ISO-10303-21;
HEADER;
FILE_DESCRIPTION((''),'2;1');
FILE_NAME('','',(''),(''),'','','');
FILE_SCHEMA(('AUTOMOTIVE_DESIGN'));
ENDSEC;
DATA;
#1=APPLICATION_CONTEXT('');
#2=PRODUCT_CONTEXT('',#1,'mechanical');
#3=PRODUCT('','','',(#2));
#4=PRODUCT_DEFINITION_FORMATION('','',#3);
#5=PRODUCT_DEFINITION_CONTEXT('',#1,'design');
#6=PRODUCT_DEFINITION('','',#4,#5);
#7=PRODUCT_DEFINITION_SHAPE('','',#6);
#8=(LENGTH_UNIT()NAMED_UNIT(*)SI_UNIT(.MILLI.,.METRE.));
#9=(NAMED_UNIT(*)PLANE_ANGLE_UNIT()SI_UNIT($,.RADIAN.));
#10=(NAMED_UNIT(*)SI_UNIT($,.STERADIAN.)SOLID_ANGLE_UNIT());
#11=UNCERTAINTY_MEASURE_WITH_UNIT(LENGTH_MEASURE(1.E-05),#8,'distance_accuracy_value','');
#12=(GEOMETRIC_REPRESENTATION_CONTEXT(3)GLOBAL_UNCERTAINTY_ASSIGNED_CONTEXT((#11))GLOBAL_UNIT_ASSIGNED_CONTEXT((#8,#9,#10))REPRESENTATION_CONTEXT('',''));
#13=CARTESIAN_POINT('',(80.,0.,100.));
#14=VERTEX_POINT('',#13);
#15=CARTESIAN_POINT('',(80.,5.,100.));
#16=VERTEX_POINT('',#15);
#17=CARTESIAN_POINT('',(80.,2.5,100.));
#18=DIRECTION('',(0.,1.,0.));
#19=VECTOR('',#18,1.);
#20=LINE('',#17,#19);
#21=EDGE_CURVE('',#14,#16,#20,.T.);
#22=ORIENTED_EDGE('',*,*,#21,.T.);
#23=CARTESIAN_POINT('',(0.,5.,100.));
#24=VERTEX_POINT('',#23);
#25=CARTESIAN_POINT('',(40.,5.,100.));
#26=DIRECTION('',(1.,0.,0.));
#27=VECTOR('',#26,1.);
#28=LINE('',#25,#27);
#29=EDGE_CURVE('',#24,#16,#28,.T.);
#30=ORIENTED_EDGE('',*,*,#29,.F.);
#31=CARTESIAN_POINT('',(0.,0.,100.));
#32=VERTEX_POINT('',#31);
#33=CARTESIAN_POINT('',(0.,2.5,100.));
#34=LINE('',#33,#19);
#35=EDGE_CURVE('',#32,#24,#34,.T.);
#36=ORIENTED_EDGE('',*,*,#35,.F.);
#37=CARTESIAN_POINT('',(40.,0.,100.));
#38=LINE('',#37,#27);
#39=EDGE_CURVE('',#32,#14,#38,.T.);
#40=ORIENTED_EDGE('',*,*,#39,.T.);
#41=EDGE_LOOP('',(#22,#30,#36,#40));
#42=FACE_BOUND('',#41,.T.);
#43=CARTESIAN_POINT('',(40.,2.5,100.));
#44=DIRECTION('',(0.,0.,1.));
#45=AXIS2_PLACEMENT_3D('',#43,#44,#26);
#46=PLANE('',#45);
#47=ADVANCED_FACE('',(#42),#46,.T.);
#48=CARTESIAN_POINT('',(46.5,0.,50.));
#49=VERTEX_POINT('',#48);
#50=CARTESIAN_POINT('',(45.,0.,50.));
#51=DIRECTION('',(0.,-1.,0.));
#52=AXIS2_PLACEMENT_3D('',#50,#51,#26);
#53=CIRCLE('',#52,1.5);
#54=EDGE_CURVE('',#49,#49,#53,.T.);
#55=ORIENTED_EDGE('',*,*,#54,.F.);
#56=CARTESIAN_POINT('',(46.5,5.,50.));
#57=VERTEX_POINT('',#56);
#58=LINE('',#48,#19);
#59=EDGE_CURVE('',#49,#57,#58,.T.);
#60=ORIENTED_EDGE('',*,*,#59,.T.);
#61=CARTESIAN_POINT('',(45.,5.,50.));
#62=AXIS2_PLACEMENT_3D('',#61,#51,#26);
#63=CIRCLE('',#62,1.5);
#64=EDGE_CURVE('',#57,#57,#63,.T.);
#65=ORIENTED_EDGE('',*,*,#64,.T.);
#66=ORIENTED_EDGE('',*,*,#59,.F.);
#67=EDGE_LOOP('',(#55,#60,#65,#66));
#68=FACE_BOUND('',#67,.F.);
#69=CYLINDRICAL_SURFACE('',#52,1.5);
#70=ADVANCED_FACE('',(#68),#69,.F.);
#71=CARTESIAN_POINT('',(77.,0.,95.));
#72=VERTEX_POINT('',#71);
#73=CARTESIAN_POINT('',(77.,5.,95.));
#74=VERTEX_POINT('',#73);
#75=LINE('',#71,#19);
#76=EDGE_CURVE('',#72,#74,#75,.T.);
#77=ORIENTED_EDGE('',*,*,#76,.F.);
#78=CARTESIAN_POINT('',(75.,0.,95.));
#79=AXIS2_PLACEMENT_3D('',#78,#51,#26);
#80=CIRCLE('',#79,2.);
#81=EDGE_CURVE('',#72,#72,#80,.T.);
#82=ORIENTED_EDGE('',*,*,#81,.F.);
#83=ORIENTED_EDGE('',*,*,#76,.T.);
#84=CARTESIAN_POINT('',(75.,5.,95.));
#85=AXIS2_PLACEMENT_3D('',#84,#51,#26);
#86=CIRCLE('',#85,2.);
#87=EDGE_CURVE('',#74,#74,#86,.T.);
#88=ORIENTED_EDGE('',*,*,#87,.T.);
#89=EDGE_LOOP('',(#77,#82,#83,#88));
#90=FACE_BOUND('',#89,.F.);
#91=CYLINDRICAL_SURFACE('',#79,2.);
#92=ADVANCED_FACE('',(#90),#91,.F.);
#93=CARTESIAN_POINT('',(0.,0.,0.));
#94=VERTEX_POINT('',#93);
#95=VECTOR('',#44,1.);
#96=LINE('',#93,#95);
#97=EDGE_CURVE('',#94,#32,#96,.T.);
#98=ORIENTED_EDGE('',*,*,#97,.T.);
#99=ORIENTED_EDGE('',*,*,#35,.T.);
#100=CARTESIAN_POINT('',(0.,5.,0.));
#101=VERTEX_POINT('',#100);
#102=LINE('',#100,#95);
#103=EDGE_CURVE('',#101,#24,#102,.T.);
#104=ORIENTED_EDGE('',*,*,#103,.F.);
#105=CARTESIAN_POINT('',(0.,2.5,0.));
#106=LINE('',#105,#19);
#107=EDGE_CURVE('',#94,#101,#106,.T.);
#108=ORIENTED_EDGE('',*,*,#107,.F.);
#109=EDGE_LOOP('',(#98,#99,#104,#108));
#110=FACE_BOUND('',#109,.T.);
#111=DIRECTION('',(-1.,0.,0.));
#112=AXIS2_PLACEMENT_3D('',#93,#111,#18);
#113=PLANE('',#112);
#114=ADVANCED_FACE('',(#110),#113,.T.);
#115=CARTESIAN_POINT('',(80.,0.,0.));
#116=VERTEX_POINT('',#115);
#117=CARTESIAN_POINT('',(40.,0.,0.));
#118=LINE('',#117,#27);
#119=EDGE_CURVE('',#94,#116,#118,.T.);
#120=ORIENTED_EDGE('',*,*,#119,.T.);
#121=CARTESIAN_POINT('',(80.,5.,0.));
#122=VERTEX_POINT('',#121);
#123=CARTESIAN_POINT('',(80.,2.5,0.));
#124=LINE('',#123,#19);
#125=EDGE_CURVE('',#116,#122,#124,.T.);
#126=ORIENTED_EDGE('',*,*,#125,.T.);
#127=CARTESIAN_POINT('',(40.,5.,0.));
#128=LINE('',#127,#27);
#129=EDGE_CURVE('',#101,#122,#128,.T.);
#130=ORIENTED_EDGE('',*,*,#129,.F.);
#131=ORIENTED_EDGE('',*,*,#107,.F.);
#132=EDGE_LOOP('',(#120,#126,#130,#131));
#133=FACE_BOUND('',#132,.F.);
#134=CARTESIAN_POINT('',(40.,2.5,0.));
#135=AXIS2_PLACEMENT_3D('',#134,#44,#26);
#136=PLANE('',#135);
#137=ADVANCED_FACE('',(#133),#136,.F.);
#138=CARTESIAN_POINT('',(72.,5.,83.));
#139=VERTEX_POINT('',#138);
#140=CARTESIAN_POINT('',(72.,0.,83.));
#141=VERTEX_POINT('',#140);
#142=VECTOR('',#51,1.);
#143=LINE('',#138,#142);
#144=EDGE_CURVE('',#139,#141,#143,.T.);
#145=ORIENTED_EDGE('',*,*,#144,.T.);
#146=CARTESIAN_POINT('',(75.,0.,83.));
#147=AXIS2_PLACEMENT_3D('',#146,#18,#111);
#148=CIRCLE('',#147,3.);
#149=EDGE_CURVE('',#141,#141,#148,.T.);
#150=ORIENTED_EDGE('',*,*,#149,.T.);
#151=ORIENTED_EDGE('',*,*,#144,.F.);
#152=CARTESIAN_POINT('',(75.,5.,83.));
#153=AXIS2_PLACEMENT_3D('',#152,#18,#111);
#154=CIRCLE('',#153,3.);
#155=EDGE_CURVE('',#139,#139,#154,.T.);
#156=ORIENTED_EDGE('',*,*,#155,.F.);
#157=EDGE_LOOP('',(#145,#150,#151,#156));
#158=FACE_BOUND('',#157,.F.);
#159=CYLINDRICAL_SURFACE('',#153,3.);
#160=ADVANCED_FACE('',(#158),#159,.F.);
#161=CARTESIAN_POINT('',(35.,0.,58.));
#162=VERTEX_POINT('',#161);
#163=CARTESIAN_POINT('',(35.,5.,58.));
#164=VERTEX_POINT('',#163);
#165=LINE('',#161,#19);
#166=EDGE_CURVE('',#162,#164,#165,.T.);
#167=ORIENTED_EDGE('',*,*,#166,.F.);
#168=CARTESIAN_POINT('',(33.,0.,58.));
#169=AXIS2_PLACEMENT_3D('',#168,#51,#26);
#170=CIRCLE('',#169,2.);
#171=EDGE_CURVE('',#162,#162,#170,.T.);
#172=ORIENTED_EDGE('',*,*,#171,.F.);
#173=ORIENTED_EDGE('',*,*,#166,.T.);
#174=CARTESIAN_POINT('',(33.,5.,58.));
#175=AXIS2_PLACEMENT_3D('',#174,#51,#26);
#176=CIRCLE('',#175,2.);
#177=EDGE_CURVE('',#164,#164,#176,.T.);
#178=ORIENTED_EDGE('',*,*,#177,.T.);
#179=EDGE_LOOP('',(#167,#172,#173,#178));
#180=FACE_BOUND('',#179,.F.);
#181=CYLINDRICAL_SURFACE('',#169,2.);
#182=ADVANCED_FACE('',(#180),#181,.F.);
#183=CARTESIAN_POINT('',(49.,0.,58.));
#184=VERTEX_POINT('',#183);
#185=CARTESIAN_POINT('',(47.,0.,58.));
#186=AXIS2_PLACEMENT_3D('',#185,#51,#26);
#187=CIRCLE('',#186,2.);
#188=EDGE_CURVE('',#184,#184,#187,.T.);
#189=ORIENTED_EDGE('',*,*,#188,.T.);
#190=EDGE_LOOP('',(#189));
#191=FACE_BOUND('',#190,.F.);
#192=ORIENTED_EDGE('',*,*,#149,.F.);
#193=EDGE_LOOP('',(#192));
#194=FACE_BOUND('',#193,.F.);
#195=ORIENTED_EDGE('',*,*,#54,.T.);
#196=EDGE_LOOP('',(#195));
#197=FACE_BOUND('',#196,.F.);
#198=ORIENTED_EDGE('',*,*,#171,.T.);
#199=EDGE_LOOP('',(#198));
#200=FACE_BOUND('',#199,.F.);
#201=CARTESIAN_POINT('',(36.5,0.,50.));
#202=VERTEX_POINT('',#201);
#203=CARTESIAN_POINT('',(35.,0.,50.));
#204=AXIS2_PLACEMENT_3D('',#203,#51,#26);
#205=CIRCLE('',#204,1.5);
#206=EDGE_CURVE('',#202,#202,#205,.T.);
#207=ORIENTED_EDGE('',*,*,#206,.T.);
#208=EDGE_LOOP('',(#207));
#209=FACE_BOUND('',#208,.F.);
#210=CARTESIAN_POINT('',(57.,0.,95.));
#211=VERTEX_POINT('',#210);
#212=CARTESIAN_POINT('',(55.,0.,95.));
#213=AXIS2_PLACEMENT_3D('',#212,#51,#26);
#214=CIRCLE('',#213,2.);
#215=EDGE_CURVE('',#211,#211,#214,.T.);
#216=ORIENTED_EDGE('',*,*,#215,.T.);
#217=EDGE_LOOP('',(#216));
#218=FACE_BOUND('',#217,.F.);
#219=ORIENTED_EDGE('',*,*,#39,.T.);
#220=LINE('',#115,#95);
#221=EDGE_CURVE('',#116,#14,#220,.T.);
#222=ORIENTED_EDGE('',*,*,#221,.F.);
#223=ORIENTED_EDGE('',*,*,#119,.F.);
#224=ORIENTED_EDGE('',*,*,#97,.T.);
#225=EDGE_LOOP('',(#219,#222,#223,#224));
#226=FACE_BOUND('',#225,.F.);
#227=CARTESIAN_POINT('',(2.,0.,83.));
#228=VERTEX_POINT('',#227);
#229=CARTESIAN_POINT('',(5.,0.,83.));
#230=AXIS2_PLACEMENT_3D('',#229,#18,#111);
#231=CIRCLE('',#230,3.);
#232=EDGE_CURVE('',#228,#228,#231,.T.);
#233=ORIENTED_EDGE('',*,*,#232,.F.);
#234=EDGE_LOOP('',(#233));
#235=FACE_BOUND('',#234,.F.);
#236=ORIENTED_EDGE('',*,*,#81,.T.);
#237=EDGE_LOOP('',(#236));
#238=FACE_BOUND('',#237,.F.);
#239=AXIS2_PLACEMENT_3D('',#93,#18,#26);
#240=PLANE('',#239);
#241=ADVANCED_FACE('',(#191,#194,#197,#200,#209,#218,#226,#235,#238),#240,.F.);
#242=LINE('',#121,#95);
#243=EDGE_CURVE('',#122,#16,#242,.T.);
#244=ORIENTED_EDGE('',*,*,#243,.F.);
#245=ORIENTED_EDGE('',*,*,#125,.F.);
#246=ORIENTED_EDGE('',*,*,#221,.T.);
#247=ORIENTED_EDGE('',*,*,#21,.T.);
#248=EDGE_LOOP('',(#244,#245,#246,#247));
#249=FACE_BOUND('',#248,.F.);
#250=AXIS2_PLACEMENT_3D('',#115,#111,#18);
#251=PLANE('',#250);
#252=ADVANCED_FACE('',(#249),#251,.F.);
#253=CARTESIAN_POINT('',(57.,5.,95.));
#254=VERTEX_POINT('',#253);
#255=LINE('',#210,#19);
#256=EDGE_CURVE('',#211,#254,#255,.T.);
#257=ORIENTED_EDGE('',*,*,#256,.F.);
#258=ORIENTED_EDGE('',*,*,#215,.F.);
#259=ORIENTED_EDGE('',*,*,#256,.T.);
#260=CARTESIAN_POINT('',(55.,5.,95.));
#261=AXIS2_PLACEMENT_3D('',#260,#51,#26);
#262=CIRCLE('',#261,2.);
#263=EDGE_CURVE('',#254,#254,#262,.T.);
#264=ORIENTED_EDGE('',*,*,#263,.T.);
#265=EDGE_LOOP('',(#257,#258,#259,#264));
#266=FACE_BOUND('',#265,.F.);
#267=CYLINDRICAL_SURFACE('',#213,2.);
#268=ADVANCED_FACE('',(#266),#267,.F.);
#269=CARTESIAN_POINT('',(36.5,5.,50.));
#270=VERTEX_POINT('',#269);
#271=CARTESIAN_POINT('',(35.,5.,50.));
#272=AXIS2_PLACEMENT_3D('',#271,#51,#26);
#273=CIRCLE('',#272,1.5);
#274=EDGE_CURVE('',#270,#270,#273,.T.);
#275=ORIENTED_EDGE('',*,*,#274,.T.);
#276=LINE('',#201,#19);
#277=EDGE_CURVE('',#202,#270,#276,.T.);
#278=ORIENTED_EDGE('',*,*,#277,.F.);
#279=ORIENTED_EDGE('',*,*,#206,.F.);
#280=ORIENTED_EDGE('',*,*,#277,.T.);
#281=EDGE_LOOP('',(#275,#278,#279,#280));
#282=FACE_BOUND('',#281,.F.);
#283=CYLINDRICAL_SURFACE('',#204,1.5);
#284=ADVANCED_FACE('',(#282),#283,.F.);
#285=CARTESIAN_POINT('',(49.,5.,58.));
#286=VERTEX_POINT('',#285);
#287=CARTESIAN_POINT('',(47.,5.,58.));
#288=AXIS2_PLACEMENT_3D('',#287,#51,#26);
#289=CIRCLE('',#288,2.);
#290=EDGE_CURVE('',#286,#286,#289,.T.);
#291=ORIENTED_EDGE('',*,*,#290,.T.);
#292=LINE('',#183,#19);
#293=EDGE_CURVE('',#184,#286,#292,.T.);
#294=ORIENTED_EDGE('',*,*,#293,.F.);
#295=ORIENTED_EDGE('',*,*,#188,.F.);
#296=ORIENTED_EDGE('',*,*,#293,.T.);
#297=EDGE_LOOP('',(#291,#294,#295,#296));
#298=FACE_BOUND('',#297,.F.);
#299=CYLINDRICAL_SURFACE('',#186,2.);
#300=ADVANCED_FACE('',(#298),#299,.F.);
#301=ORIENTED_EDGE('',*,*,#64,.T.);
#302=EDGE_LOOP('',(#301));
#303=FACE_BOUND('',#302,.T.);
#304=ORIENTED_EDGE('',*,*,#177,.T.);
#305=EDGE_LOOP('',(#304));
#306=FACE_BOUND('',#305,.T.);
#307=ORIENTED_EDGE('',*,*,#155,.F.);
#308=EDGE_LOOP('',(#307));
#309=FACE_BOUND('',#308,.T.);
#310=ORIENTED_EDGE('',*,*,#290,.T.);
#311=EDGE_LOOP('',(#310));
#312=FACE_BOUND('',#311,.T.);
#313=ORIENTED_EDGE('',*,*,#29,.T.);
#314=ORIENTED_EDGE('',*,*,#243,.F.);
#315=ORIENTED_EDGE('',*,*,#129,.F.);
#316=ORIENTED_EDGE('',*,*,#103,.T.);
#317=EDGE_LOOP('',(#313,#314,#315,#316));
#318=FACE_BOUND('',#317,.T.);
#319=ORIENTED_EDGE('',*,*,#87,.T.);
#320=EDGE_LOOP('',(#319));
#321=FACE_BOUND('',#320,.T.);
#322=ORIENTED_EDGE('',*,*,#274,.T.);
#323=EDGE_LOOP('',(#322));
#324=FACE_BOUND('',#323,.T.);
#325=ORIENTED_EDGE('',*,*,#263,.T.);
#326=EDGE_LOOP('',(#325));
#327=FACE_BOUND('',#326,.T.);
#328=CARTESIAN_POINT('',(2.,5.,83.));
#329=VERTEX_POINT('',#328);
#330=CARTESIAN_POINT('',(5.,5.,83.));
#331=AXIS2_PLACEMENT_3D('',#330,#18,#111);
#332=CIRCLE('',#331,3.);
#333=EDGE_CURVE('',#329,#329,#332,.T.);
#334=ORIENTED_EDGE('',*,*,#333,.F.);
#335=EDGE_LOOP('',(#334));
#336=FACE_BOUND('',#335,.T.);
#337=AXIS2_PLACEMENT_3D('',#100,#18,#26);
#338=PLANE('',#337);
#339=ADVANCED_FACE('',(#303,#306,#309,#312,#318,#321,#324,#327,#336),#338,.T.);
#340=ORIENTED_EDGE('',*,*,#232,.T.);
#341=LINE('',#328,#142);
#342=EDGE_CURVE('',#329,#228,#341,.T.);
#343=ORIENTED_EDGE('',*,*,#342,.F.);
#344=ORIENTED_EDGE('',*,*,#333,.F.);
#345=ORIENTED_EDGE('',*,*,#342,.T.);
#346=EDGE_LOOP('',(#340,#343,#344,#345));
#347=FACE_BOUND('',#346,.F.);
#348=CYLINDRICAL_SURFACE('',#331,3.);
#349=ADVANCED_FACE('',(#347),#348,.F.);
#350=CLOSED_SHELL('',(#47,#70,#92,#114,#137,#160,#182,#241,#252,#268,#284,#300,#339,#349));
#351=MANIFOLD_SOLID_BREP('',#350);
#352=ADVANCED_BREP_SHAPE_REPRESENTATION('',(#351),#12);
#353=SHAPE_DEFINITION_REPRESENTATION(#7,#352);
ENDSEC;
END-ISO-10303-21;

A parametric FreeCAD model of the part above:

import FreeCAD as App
import Part
import Sketcher


def add_polygon(sketch, points):
    """Adds a closed chain of lines whose ends are joined by coincident constraints."""
    first, n = sketch.GeometryCount, len(points)
    for a, b in zip(points, points[1:] + points[:1]):
        sketch.addGeometry(Part.LineSegment(App.Vector(*a, 0), App.Vector(*b, 0)), False)
    for i in range(n):
        sketch.addConstraint(Sketcher.Constraint("Coincident", first + i, 2, first + (i + 1) % n, 1))

doc = App.newDocument("Part")
params = doc.addObject("Spreadsheet::Sheet", "Params")
for row, (alias, value) in enumerate([
    ("sketch1_width", "80 mm"),
    ("sketch1_height", "5 mm"),
    ("pad1_length", "100 mm"),
    ("sketch2_diameter", "6 mm"),
    ("pocket1_length", "25 mm"),
    ("sketch3_diameter", "3 mm"),
    ("pocket2_length", "25 mm"),
    ("sketch4_diameter", "4 mm"),
    ("pocket3_length", "25 mm"),
    ("sketch5_diameter", "4 mm"),
    ("pocket4_length", "25 mm"),
], start=1):
    params.set(f"A{row}", alias)
    params.set(f"B{row}", "=" + value)
    params.setAlias(f"B{row}", alias)

body = doc.addObject("PartDesign::Body", "Body")

# Sketch on XY plane
sketch1 = body.newObject("Sketcher::SketchObject", "Sketch")
sketch1.AttachmentSupport = (doc.getObject("XY_Plane"), [""])
sketch1.MapMode = "FlatFace"
add_polygon(sketch1, [(0, 5), (0, 0), (80, 0), (80, 5)])  # lines 0-3
sketch1.addConstraint(Sketcher.Constraint("Vertical", 0))
sketch1.addConstraint(Sketcher.Constraint("Horizontal", 1))
sketch1.addConstraint(Sketcher.Constraint("Vertical", 2))
sketch1.addConstraint(Sketcher.Constraint("Horizontal", 3))
sketch1.addConstraint(Sketcher.Constraint("Coincident", 0, 2, -1, 1))
sketch1.addConstraint(Sketcher.Constraint("DistanceX", 1, 1, 1, 2, 80.0))
sketch1.addConstraint(Sketcher.Constraint("DistanceY", 0, 2, 0, 1, 5.0))
sketch1.setExpression("Constraints[9]", "Params.sketch1_width")
sketch1.setExpression("Constraints[10]", "Params.sketch1_height")
pad1 = body.newObject("PartDesign::Pad", "Pad")
pad1.Profile = sketch1
pad1.setExpression("Length", "Params.pad1_length")

# Sketch on XZ plane
sketch2 = body.newObject("Sketcher::SketchObject", "Sketch001")
sketch2.AttachmentSupport = (doc.getObject("XZ_Plane"), [""])
sketch2.MapMode = "FlatFace"
sketch2.AttachmentOffset = App.Placement(App.Vector(0, 0, -5), App.Rotation())
sketch2.addGeometry(Part.Circle(App.Vector(5, 83, 0), App.Vector(0, 0, 1), 3), False)
sketch2.addGeometry(Part.Circle(App.Vector(75, 83, 0), App.Vector(0, 0, 1), 3), False)
sketch2.addConstraint(Sketcher.Constraint("Equal", 0, 1))
sketch2.addConstraint(Sketcher.Constraint("Horizontal", 0, 3, 1, 3))
sketch2.addConstraint(Sketcher.Constraint("Diameter", 0, 6.0))
sketch2.addConstraint(Sketcher.Constraint("DistanceX", -1, 1, 0, 3, 5.0))
sketch2.addConstraint(Sketcher.Constraint("DistanceY", -1, 1, 0, 3, 83.0))
sketch2.addConstraint(Sketcher.Constraint("DistanceX", -1, 1, 1, 3, 75.0))
sketch2.setExpression("Constraints[2]", "Params.sketch2_diameter")
pocket1 = body.newObject("PartDesign::Pocket", "Pocket")
pocket1.Profile = sketch2
pocket1.setExpression("Length", "Params.pocket1_length")
pocket1.Reversed = True

# Sketch on XZ plane
sketch3 = body.newObject("Sketcher::SketchObject", "Sketch002")
sketch3.AttachmentSupport = (doc.getObject("XZ_Plane"), [""])
sketch3.MapMode = "FlatFace"
sketch3.addGeometry(Part.Circle(App.Vector(45, 50, 0), App.Vector(0, 0, 1), 1.5), False)
sketch3.addGeometry(Part.Circle(App.Vector(35, 50, 0), App.Vector(0, 0, 1), 1.5), False)
sketch3.addConstraint(Sketcher.Constraint("Equal", 0, 1))
sketch3.addConstraint(Sketcher.Constraint("Horizontal", 0, 3, 1, 3))
sketch3.addConstraint(Sketcher.Constraint("Diameter", 0, 3.0))
sketch3.addConstraint(Sketcher.Constraint("DistanceX", -1, 1, 0, 3, 45.0))
sketch3.addConstraint(Sketcher.Constraint("DistanceY", -1, 1, 0, 3, 50.0))
sketch3.addConstraint(Sketcher.Constraint("DistanceX", -1, 1, 1, 3, 35.0))
sketch3.setExpression("Constraints[2]", "Params.sketch3_diameter")
pocket2 = body.newObject("PartDesign::Pocket", "Pocket001")
pocket2.Profile = sketch3
pocket2.setExpression("Length", "Params.pocket2_length")

# Sketch on XZ plane
sketch4 = body.newObject("Sketcher::SketchObject", "Sketch003")
sketch4.AttachmentSupport = (doc.getObject("XZ_Plane"), [""])
sketch4.MapMode = "FlatFace"
sketch4.addGeometry(Part.Circle(App.Vector(75, 95, 0), App.Vector(0, 0, 1), 2), False)
sketch4.addGeometry(Part.Circle(App.Vector(55, 95, 0), App.Vector(0, 0, 1), 2), False)
sketch4.addConstraint(Sketcher.Constraint("Equal", 0, 1))
sketch4.addConstraint(Sketcher.Constraint("Horizontal", 0, 3, 1, 3))
sketch4.addConstraint(Sketcher.Constraint("Diameter", 0, 4.0))
sketch4.addConstraint(Sketcher.Constraint("DistanceX", -1, 1, 0, 3, 75.0))
sketch4.addConstraint(Sketcher.Constraint("DistanceY", -1, 1, 0, 3, 95.0))
sketch4.addConstraint(Sketcher.Constraint("DistanceX", -1, 1, 1, 3, 55.0))
sketch4.setExpression("Constraints[2]", "Params.sketch4_diameter")
pocket3 = body.newObject("PartDesign::Pocket", "Pocket002")
pocket3.Profile = sketch4
pocket3.setExpression("Length", "Params.pocket3_length")

# Sketch on XZ plane
sketch5 = body.newObject("Sketcher::SketchObject", "Sketch004")
sketch5.AttachmentSupport = (doc.getObject("XZ_Plane"), [""])
sketch5.MapMode = "FlatFace"
sketch5.addGeometry(Part.Circle(App.Vector(33, 58, 0), App.Vector(0, 0, 1), 2), False)
sketch5.addGeometry(Part.Circle(App.Vector(47, 58, 0), App.Vector(0, 0, 1), 2), False)
sketch5.addConstraint(Sketcher.Constraint("Equal", 0, 1))
sketch5.addConstraint(Sketcher.Constraint("Horizontal", 0, 3, 1, 3))
sketch5.addConstraint(Sketcher.Constraint("Diameter", 0, 4.0))
sketch5.addConstraint(Sketcher.Constraint("DistanceX", -1, 1, 0, 3, 33.0))
sketch5.addConstraint(Sketcher.Constraint("DistanceY", -1, 1, 0, 3, 58.0))
sketch5.addConstraint(Sketcher.Constraint("DistanceX", -1, 1, 1, 3, 47.0))
sketch5.setExpression("Constraints[2]", "Params.sketch5_diameter")
pocket4 = body.newObject("PartDesign::Pocket", "Pocket003")
pocket4.Profile = sketch5
pocket4.setExpression("Length", "Params.pocket4_length")

doc.recompute()
